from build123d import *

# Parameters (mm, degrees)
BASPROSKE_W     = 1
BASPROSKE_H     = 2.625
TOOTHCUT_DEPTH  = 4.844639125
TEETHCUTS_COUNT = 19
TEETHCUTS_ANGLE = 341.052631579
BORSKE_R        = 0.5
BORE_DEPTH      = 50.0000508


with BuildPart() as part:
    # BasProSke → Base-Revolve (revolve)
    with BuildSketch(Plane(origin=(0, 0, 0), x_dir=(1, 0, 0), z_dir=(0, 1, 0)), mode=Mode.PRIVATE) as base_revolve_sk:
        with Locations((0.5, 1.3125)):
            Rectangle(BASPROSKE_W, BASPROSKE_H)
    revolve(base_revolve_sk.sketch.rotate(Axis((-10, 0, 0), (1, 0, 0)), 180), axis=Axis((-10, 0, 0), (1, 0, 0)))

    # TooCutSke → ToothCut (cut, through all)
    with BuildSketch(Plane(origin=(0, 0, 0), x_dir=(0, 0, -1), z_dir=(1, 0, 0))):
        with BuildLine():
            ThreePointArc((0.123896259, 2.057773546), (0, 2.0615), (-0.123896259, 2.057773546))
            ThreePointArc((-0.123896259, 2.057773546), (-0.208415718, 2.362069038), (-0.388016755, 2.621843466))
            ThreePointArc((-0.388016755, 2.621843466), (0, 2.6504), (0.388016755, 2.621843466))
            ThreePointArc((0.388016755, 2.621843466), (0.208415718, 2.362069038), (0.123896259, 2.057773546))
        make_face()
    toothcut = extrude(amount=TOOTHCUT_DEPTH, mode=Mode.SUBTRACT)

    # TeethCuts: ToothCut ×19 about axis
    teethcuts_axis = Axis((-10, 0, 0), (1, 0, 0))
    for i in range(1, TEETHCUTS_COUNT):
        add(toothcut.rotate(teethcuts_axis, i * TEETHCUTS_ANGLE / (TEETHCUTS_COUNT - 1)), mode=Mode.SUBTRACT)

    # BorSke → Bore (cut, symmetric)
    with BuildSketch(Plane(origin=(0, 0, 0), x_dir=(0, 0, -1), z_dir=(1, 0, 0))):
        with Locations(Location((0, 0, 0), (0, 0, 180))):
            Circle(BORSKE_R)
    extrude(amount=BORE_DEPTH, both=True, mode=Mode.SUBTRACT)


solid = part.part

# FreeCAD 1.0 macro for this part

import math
import FreeCAD as App
import Part
import Sketcher
from FreeCAD import Vector

doc = App.newDocument("Part")
body = doc.addObject("PartDesign::Body", "Body")

# Sketch on XZ plane
sketch1 = body.newObject("Sketcher::SketchObject", "Sketch")
sketch1.AttachmentSupport = (doc.getObject("XZ_Plane"), [""])
sketch1.MapMode = "FlatFace"
sketch1.addGeometry([
    Part.LineSegment(Vector(0, -2.6, 0), Vector(0, 0, 0)),
    Part.LineSegment(Vector(0, 0, 0), Vector(1, 0, 0)),
    Part.LineSegment(Vector(1, 0, 0), Vector(1, -2.6, 0)),
    Part.LineSegment(Vector(1, -2.6, 0), Vector(0, -2.6, 0)),
], False)
sketch1.addConstraint([
    Sketcher.Constraint("Coincident", 0, 2, 1, 1),
    Sketcher.Constraint("Coincident", 1, 2, 2, 1),
    Sketcher.Constraint("Coincident", 2, 2, 3, 1),
    Sketcher.Constraint("Coincident", 3, 2, 0, 1),
    Sketcher.Constraint("Vertical", 0),
    Sketcher.Constraint("Horizontal", 1),
    Sketcher.Constraint("Vertical", 2),
    Sketcher.Constraint("Horizontal", 3),
    Sketcher.Constraint("Coincident", 0, 2, -1, 1),
    Sketcher.Constraint("DistanceX", 1, 1, 1, 2, 1.0),
    Sketcher.Constraint("DistanceY", 0, 1, 0, 2, 2.625),
])
revolution = body.newObject("PartDesign::Revolution", "Revolution")
revolution.Profile = sketch1
revolution.ReferenceAxis = (sketch1, ["H_Axis"])
revolution.Angle = 360

# Sketch on YZ plane
sketch2 = body.newObject("Sketcher::SketchObject", "Sketch001")
sketch2.AttachmentSupport = (doc.getObject("YZ_Plane"), [""])
sketch2.MapMode = "FlatFace"
sketch2.addGeometry([
    Part.ArcOfCircle(Part.Circle(Vector(0, 0, 0), Vector(0, 0, 1), 2.06), math.radians(-3.45), math.radians(3.45)),
    Part.ArcOfCircle(Part.Circle(Vector(1.96, -1.07, 0), Vector(0, 0, 1), 0.95), math.radians(46), math.radians(84)),
    Part.ArcOfCircle(Part.Circle(Vector(0, 0, 0), Vector(0, 0, 1), 2.65), math.radians(-8.42), math.radians(8.42)),
    Part.ArcOfCircle(Part.Circle(Vector(1.96, 1.07, 0), Vector(0, 0, 1), 0.95), math.radians(-84), math.radians(-46)),
], False)
sketch2.addConstraint([
    Sketcher.Constraint("Coincident", 0, 1, 1, 2),
    Sketcher.Constraint("Coincident", 1, 1, 2, 1),
    Sketcher.Constraint("Coincident", 2, 2, 3, 2),
    Sketcher.Constraint("Coincident", 3, 1, 0, 2),
    Sketcher.Constraint("Coincident", 0, 3, -1, 1),
    Sketcher.Constraint("Coincident", 2, 3, -1, 1),
    Sketcher.Constraint("Equal", 1, 3),
    Sketcher.Constraint("Symmetric", 1, 3, 3, 3, -1),
    Sketcher.Constraint("Radius", 1, 0.95),
    Sketcher.Constraint("Radius", 0, 2.0615),
    Sketcher.Constraint("Radius", 2, 2.6504),
    Sketcher.Constraint("DistanceY", 1, 3, -1, 1, 1.06877),
    Sketcher.Constraint("DistanceX", 0, 1, 1, 1, 0.56407),
])
pocket1 = body.newObject("PartDesign::Pocket", "Pocket")
pocket1.Profile = sketch2
pocket1.Type = "ThroughAll"
pocket1.Reversed = True
doc.recompute()

polarpattern = body.newObject("PartDesign::PolarPattern", "PolarPattern")
polarpattern.Originals = [pocket1]
polarpattern.Axis = (doc.getObject("X_Axis"), [""])
polarpattern.Angle = 360
polarpattern.Occurrences = 19
body.Tip = polarpattern

# Sketch on YZ plane
sketch3 = body.newObject("Sketcher::SketchObject", "Sketch002")
sketch3.AttachmentSupport = (doc.getObject("YZ_Plane"), [""])
sketch3.MapMode = "FlatFace"
sketch3.addGeometry(Part.Circle(Vector(0, 0, 0), Vector(0, 0, 1), 0.5), False)
sketch3.addConstraint([
    Sketcher.Constraint("Coincident", 0, 3, -1, 1),
    Sketcher.Constraint("Diameter", 0, 1.0),
])
pocket2 = body.newObject("PartDesign::Pocket", "Pocket001")
pocket2.Profile = sketch3
pocket2.Length = 100.000102
pocket2.Midplane = True

doc.recompute()
